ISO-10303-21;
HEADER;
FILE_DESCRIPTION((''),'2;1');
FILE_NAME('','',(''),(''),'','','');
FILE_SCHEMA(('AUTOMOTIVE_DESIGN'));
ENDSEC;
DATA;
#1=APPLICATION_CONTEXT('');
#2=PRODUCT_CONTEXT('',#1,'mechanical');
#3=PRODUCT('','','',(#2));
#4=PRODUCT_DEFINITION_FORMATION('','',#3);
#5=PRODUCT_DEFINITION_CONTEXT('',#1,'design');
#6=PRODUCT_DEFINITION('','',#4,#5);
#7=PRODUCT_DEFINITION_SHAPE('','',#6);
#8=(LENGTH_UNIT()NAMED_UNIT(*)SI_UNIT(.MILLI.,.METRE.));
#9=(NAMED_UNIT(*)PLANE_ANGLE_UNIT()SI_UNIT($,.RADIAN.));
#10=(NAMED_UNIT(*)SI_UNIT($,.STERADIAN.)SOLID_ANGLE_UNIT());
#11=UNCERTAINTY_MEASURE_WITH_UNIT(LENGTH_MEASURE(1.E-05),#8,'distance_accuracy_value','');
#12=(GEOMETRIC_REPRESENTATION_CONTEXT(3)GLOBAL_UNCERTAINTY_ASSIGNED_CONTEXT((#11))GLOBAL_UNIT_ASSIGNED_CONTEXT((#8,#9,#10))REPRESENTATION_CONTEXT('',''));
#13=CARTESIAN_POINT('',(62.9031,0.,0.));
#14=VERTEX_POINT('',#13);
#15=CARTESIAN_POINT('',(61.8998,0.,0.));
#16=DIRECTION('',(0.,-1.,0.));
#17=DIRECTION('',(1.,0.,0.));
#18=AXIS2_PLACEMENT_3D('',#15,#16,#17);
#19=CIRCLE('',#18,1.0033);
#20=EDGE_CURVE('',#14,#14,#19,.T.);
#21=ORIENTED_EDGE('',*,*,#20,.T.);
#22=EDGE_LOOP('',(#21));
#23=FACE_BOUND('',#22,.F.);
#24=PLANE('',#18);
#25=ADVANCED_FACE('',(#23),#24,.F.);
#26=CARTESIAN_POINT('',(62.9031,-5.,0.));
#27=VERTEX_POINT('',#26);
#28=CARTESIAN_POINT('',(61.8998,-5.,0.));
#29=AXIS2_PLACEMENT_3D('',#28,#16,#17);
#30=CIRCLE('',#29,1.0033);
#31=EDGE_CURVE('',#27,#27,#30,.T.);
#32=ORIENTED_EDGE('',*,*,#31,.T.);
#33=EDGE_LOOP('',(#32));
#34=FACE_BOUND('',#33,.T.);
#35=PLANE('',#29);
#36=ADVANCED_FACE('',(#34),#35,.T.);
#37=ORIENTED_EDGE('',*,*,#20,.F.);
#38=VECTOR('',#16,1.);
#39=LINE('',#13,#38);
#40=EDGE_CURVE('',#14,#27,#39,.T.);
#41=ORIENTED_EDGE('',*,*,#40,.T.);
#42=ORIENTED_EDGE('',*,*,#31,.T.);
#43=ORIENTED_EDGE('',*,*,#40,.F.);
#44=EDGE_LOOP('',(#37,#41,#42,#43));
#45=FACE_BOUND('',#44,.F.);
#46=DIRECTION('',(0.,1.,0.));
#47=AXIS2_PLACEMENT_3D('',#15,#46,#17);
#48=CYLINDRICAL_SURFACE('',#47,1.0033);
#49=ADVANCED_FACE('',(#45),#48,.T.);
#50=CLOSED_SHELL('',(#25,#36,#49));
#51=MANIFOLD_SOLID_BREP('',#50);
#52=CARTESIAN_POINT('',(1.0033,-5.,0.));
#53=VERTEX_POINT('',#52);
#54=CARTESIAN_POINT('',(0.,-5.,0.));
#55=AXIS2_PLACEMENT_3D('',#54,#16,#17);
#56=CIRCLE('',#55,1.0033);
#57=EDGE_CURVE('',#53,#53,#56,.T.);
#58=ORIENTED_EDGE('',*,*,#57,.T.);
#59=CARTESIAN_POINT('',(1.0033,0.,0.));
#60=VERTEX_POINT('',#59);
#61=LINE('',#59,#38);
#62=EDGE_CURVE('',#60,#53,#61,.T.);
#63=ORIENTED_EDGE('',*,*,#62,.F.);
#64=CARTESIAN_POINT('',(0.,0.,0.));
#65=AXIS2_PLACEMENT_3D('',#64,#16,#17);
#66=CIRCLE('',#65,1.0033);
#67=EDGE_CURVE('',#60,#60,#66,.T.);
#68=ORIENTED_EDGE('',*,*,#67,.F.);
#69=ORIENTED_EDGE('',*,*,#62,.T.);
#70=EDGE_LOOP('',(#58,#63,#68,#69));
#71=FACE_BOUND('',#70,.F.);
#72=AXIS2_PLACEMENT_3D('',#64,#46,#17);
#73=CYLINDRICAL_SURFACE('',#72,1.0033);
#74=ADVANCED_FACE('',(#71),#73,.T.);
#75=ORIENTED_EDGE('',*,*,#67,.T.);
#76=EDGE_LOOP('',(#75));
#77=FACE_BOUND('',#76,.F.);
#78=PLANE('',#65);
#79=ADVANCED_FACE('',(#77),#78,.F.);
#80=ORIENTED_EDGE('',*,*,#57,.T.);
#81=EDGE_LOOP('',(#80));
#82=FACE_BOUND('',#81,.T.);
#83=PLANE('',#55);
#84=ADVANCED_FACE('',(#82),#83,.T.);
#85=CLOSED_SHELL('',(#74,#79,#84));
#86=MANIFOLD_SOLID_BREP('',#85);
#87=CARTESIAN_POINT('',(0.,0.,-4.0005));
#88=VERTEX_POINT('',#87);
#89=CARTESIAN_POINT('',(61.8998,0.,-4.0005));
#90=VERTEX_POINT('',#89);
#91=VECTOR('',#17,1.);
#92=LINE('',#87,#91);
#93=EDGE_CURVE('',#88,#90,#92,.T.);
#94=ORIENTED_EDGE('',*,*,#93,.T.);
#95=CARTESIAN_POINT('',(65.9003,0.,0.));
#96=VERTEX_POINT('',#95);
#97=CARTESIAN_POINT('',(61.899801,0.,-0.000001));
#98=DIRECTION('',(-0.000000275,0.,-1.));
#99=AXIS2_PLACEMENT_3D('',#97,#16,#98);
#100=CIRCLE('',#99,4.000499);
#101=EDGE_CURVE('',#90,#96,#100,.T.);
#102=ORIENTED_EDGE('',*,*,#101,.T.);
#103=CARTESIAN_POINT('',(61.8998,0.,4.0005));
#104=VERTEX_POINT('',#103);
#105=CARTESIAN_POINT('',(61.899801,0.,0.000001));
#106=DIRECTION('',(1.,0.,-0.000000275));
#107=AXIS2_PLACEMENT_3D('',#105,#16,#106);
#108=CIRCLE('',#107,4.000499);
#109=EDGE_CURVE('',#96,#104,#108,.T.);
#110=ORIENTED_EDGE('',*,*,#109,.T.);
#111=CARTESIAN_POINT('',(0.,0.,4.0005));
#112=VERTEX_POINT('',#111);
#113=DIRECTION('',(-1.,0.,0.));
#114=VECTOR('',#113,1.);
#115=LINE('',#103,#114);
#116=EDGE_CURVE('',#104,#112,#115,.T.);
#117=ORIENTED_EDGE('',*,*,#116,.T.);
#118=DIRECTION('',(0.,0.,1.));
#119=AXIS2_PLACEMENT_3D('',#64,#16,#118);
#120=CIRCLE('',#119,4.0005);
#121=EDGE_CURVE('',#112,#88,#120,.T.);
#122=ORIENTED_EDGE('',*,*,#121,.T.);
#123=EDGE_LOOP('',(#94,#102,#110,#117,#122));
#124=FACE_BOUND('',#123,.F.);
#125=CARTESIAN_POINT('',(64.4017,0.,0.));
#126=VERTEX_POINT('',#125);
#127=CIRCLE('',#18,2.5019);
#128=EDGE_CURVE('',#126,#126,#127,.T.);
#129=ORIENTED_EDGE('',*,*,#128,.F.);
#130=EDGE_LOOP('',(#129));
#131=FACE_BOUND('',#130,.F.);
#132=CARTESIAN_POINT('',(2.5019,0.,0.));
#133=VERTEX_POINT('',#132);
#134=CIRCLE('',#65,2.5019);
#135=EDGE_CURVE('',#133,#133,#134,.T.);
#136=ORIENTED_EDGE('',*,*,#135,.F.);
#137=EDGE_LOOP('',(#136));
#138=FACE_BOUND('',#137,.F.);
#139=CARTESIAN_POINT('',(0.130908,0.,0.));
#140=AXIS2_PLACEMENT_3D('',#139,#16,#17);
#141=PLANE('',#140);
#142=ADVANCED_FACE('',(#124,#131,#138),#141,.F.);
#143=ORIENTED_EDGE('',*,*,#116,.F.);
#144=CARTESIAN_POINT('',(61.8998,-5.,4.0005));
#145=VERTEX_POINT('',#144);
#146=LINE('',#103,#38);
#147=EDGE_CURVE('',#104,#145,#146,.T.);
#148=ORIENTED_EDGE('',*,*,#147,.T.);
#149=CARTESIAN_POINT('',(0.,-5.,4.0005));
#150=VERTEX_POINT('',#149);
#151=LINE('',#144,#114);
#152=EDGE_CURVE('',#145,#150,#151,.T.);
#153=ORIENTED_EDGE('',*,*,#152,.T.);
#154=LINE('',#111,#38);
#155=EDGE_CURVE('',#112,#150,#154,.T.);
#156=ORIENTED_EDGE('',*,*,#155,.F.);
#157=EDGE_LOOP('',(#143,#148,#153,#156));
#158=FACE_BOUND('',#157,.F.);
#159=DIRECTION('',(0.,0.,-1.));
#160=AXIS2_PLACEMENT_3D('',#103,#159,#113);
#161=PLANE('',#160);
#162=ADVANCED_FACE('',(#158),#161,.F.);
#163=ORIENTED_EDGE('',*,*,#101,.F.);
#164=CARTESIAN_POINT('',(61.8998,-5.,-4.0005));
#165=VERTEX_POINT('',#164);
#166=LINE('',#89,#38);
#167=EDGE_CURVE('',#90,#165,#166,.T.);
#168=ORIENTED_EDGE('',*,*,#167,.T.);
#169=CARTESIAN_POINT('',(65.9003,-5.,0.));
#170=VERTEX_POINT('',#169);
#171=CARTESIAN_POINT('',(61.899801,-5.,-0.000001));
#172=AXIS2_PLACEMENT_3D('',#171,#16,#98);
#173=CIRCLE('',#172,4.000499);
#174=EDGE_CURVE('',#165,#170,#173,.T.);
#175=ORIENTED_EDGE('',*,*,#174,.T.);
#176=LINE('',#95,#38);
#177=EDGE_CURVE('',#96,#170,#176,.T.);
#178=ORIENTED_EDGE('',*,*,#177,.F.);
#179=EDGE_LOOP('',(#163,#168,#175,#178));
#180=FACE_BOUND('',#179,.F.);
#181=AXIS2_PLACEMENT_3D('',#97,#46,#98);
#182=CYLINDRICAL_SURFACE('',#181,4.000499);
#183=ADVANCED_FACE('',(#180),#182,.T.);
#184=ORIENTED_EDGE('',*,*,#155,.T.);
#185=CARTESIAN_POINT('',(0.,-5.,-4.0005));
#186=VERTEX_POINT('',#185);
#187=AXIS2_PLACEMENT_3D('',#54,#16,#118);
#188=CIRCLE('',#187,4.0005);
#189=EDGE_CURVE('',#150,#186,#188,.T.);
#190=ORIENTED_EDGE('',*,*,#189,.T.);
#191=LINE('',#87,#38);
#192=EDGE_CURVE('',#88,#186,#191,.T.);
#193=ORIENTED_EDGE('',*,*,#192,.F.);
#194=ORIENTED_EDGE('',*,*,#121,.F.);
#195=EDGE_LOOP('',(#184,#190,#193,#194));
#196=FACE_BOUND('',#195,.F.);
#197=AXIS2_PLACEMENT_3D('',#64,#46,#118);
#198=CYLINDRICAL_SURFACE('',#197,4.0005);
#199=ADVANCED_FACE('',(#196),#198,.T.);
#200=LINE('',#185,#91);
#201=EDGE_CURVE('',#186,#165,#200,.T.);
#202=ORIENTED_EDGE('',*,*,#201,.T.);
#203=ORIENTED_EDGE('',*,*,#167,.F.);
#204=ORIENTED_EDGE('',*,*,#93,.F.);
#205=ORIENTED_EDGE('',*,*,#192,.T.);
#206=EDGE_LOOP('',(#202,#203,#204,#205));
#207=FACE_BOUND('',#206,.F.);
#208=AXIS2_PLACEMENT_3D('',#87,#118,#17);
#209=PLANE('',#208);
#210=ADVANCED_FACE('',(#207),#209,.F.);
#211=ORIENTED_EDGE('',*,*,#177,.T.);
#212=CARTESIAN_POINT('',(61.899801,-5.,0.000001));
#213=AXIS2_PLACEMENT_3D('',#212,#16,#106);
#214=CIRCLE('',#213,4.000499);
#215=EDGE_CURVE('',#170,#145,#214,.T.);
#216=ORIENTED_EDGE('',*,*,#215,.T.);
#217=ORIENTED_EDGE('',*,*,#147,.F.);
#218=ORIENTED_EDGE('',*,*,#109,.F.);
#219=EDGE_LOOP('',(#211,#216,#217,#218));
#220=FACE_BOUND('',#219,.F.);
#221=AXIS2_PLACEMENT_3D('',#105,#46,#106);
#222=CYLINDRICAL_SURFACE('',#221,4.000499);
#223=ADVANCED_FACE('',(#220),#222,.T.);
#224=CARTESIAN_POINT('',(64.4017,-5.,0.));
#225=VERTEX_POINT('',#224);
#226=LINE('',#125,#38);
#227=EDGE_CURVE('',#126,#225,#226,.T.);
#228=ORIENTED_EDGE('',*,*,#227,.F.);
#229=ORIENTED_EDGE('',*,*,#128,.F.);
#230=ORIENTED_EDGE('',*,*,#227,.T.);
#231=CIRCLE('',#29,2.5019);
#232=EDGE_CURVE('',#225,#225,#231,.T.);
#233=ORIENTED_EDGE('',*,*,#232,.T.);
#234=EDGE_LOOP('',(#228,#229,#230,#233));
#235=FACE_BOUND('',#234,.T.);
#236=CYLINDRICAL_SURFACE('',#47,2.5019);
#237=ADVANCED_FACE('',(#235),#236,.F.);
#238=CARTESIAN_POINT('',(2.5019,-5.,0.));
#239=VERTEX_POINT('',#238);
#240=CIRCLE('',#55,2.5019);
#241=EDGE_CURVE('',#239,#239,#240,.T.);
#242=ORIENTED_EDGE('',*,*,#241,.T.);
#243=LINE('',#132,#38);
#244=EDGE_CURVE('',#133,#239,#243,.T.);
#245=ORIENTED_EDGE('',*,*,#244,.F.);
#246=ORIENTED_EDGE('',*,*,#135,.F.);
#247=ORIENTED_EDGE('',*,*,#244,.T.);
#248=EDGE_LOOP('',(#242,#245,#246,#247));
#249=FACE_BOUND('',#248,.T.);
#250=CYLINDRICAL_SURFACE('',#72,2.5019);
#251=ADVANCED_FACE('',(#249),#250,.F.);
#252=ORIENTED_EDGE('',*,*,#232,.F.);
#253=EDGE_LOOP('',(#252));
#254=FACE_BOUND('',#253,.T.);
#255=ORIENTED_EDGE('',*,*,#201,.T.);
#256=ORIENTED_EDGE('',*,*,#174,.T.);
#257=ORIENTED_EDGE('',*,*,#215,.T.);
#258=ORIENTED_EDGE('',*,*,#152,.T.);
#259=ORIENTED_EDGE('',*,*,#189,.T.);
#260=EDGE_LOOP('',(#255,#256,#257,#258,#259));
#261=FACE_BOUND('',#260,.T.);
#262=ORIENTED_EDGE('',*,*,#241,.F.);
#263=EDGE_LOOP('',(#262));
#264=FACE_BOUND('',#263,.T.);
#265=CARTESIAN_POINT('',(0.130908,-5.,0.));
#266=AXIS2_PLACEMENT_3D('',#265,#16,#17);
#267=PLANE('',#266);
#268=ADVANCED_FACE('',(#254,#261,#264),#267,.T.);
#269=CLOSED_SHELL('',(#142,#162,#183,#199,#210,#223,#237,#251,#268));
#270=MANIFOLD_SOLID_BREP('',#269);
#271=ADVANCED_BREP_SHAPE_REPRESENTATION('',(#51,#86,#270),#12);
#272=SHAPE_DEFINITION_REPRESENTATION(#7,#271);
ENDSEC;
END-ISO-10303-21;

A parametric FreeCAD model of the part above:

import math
import FreeCAD as App
import Part
import Sketcher
from FreeCAD import Vector
Q = App.Units.Quantity

doc = App.newDocument("Part")
body = doc.addObject("PartDesign::Body", "Body")
body.AllowCompound = True

# Sketch on XZ plane
sketch1 = body.newObject("Sketcher::SketchObject", "Sketch")
sketch1.AttachmentSupport = (doc.getObject("XZ_Plane"), [""])
sketch1.MapMode = "FlatFace"
sketch1.addGeometry(Part.ArcOfCircle(Part.Circle(Vector(0, 0, 0), Vector(0, 0, 1), 4), math.radians(90), math.radians(270)), False)
sketch1.addGeometry(Part.LineSegment(Vector(0, -4, 0), Vector(61.9, -4, 0)), False)
sketch1.addGeometry(Part.ArcOfCircle(Part.Circle(Vector(61.9, 0, 0), Vector(0, 0, 1), 4), math.radians(-90), math.radians(0)), False)
sketch1.addGeometry(Part.ArcOfCircle(Part.Circle(Vector(61.9, 0, 0), Vector(0, 0, 1), 4), math.radians(0), math.radians(90)), False)
sketch1.addGeometry(Part.LineSegment(Vector(61.9, 4, 0), Vector(0, 4, 0)), False)
sketch1.addGeometry(Part.Circle(Vector(0, 0, 0), Vector(0, 0, 1), 2.5), False)
sketch1.addGeometry(Part.Circle(Vector(61.9, 0, 0), Vector(0, 0, 1), 2.5), False)
sketch1.addGeometry(Part.Circle(Vector(0, 0, 0), Vector(0, 0, 1), 1), False)
sketch1.addGeometry(Part.Circle(Vector(61.9, 0, 0), Vector(0, 0, 1), 1), False)
sketch1.addConstraint(Sketcher.Constraint("Tangent", 0, 2, 1, 1))
sketch1.addConstraint(Sketcher.Constraint("Tangent", 1, 2, 2, 1))
sketch1.addConstraint(Sketcher.Constraint("Tangent", 2, 2, 3, 1))
sketch1.addConstraint(Sketcher.Constraint("Tangent", 3, 2, 4, 1))
sketch1.addConstraint(Sketcher.Constraint("Tangent", 4, 2, 0, 1))
sketch1.addConstraint(Sketcher.Constraint("Horizontal", 1))
sketch1.addConstraint(Sketcher.Constraint("Horizontal", 4))
sketch1.addConstraint(Sketcher.Constraint("Coincident", 0, 3, -1, 1))
sketch1.addConstraint(Sketcher.Constraint("Coincident", 5, 3, -1, 1))
sketch1.addConstraint(Sketcher.Constraint("Coincident", 7, 3, -1, 1))
sketch1.addConstraint(Sketcher.Constraint("Coincident", 6, 3, 2, 3))
sketch1.addConstraint(Sketcher.Constraint("Coincident", 8, 3, 2, 3))
sketch1.addConstraint(Sketcher.Constraint("Equal", 0, 2))
sketch1.addConstraint(Sketcher.Constraint("Equal", 5, 6))
sketch1.addConstraint(Sketcher.Constraint("Equal", 7, 8))
sketch1.addConstraint(Sketcher.Constraint("PointOnObject", 2, 2, -1))
sketch1.addConstraint(Sketcher.Constraint("Diameter", 5, Q("0.197 in")))
sketch1.addConstraint(Sketcher.Constraint("Diameter", 7, Q("0.079 in")))
sketch1.addConstraint(Sketcher.Constraint("Radius", 0, Q("0.1575 in")))
sketch1.addConstraint(Sketcher.Constraint("DistanceX", 1, 1, 1, 2, Q("2.437 in")))
pad1 = body.newObject("PartDesign::Pad", "Pad")
pad1.Profile = sketch1
pad1.Length = 5

doc.recompute()
